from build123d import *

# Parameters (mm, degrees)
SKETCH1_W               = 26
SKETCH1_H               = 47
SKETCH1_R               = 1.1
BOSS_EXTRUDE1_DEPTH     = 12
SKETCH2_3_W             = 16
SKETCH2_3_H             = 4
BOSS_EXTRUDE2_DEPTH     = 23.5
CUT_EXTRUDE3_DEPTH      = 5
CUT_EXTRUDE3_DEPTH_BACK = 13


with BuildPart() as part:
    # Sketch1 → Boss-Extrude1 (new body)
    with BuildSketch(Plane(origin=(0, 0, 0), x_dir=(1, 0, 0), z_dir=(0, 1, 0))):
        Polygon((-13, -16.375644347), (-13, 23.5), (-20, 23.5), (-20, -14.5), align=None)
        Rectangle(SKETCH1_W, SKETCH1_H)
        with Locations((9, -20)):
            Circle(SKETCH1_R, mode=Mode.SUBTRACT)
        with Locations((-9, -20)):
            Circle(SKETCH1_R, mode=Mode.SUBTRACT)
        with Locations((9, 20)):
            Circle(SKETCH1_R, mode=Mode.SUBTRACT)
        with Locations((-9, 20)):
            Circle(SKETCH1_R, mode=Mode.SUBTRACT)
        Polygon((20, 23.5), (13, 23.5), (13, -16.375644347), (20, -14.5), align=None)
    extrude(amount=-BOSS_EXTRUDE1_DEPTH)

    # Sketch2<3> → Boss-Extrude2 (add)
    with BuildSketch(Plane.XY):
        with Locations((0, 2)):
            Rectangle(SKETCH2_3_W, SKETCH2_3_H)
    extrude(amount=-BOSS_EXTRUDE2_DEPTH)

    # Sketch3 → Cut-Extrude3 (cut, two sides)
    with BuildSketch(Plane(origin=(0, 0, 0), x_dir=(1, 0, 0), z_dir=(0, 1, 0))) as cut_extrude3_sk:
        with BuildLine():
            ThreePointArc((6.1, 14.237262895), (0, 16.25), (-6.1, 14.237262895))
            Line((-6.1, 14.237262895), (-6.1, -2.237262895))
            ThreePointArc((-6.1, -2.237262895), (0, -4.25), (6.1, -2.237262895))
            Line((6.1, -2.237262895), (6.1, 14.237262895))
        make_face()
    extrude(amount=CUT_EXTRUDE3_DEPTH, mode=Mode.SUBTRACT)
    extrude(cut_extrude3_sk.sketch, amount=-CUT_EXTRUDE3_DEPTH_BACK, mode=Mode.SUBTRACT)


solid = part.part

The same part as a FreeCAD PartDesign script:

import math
import FreeCAD as App
import Part
import Sketcher
Q = App.Units.Quantity


def add_polygon(sketch, points):
    """Adds a closed chain of lines whose ends are joined by coincident constraints."""
    first, n = sketch.GeometryCount, len(points)
    for a, b in zip(points, points[1:] + points[:1]):
        sketch.addGeometry(Part.LineSegment(App.Vector(*a, 0), App.Vector(*b, 0)), False)
    for i in range(n):
        sketch.addConstraint(Sketcher.Constraint("Coincident", first + i, 2, first + (i + 1) % n, 1))

doc = App.newDocument("Part")
body = doc.addObject("PartDesign::Body", "Body")

# Sketch on XZ plane
sketch1 = doc.addObject("Sketcher::SketchObject", "Sketch")
body.addObject(sketch1)
sketch1.AttachmentSupport = (doc.XZ_Plane, [""])
sketch1.MapMode = "FlatFace"
add_polygon(sketch1, [(-20, -23.5), (-20, 14.5), (-13, 16.375644), (-13, 23.5), (13, 23.5), (13, 16.375644), (20, 14.5), (20, -23.5)])  # lines 0-7
sketch1.addGeometry(Part.Circle(App.Vector(-9, 20, 0), App.Vector(0, 0, 1), 1.1), False)  # 8
sketch1.addGeometry(Part.Circle(App.Vector(9, 20, 0), App.Vector(0, 0, 1), 1.1), False)  # 9
sketch1.addGeometry(Part.Circle(App.Vector(-9, -20, 0), App.Vector(0, 0, 1), 1.1), False)  # 10
sketch1.addGeometry(Part.Circle(App.Vector(9, -20, 0), App.Vector(0, 0, 1), 1.1), False)  # 11
sketch1.addConstraint(Sketcher.Constraint("Vertical", 0))
sketch1.addConstraint(Sketcher.Constraint("Vertical", 2))
sketch1.addConstraint(Sketcher.Constraint("Horizontal", 3))
sketch1.addConstraint(Sketcher.Constraint("Vertical", 4))
sketch1.addConstraint(Sketcher.Constraint("Vertical", 6))
sketch1.addConstraint(Sketcher.Constraint("Horizontal", 7))
sketch1.addConstraint(Sketcher.Constraint("Equal", 8, 9))
sketch1.addConstraint(Sketcher.Constraint("Equal", 9, 10))
sketch1.addConstraint(Sketcher.Constraint("Equal", 10, 11))
sketch1.addConstraint(Sketcher.Constraint("Symmetric", 9, 3, 10, 3, -1, 1))
sketch1.addConstraint(Sketcher.Constraint("Symmetric", 8, 3, 11, 3, -1, 1))
sketch1.addConstraint(Sketcher.Constraint("Symmetric", 8, 3, 9, 3, -2))
sketch1.addConstraint(Sketcher.Constraint("Symmetric", 1, 2, 4, 2, -2))
sketch1.addConstraint(Sketcher.Constraint("Symmetric", 0, 2, 5, 2, -2))
sketch1.addConstraint(Sketcher.Constraint("Diameter", 8, 2.2))
sketch1.addConstraint(Sketcher.Constraint("DistanceX", 3, 1, 3, 2, 26.0))
sketch1.addConstraint(Sketcher.Constraint("DistanceX", 7, 2, 7, 1, 40.0))
sketch1.addConstraint(Sketcher.Constraint("DistanceY", 0, 1, 0, 2, 38.0))
sketch1.addConstraint(Sketcher.Constraint("Angle", 1, Q("15 deg")))
sketch1.addConstraint(Sketcher.Constraint("DistanceX", 8, 3, -1, 1, 9.0))
sketch1.addConstraint(Sketcher.Constraint("DistanceY", -1, 1, 8, 3, 20.0))
sketch1.addConstraint(Sketcher.Constraint("DistanceY", 0, 2, 2, 2, 9.0))
sketch1.addConstraint(Sketcher.Constraint("DistanceY", -1, 1, 0, 2, 14.5))
pad1 = doc.addObject("PartDesign::Pad", "Pad")
body.addObject(pad1)
pad1.Profile = sketch1
pad1.Length = 12

# Sketch on XY plane
sketch2 = doc.addObject("Sketcher::SketchObject", "Sketch001")
body.addObject(sketch2)
sketch2.AttachmentSupport = (doc.XY_Plane, [""])
sketch2.MapMode = "FlatFace"
add_polygon(sketch2, [(-8, 4), (-8, 0), (8, 0), (8, 4)])  # lines 0-3
sketch2.addConstraint(Sketcher.Constraint("Vertical", 0))
sketch2.addConstraint(Sketcher.Constraint("Horizontal", 1))
sketch2.addConstraint(Sketcher.Constraint("Vertical", 2))
sketch2.addConstraint(Sketcher.Constraint("Horizontal", 3))
sketch2.addConstraint(Sketcher.Constraint("Symmetric", 0, 2, 1, 2, -1, 1))
sketch2.addConstraint(Sketcher.Constraint("DistanceX", 1, 1, 1, 2, 16.0))
sketch2.addConstraint(Sketcher.Constraint("DistanceY", 0, 2, 0, 1, 4.0))
pad2 = doc.addObject("PartDesign::Pad", "Pad001")
body.addObject(pad2)
pad2.Profile = sketch2
pad2.Length = 23.5
pad2.Reversed = True

# Sketch on XZ plane
sketch3 = doc.addObject("Sketcher::SketchObject", "Sketch002")
body.addObject(sketch3)
sketch3.AttachmentSupport = (doc.XZ_Plane, [""])
sketch3.MapMode = "FlatFace"
sketch3.addGeometry(Part.ArcOfCircle(Part.Circle(App.Vector(0, -6, 0), App.Vector(0, 0, 1), 10.25), math.radians(-126.521326), math.radians(-53.478674)), False)
sketch3.addGeometry(Part.LineSegment(App.Vector(-6.1, -14.237263, 0), App.Vector(-6.1, 2.237263, 0)), False)
sketch3.addGeometry(Part.ArcOfCircle(Part.Circle(App.Vector(0, -6, 0), App.Vector(0, 0, 1), 10.25), math.radians(53.478674), math.radians(126.521326)), False)
sketch3.addGeometry(Part.LineSegment(App.Vector(6.1, 2.237263, 0), App.Vector(6.1, -14.237263, 0)), False)
sketch3.addConstraint(Sketcher.Constraint("Coincident", 0, 1, 1, 1))
sketch3.addConstraint(Sketcher.Constraint("Coincident", 1, 2, 2, 2))
sketch3.addConstraint(Sketcher.Constraint("Coincident", 2, 1, 3, 1))
sketch3.addConstraint(Sketcher.Constraint("Coincident", 3, 2, 0, 2))
sketch3.addConstraint(Sketcher.Constraint("Vertical", 1))
sketch3.addConstraint(Sketcher.Constraint("Vertical", 3))
sketch3.addConstraint(Sketcher.Constraint("Coincident", 2, 3, 0, 3))
sketch3.addConstraint(Sketcher.Constraint("Equal", 0, 2))
sketch3.addConstraint(Sketcher.Constraint("Symmetric", 1, 2, 2, 1, -2))
sketch3.addConstraint(Sketcher.Constraint("Radius", 0, 10.25))
sketch3.addConstraint(Sketcher.Constraint("DistanceY", 0, 3, -1, 1, 6.0))
sketch3.addConstraint(Sketcher.Constraint("DistanceX", 0, 1, -1, 1, 6.1))
pocket1 = doc.addObject("PartDesign::Pocket", "Pocket")
body.addObject(pocket1)
pocket1.Profile = sketch3
pocket1.Type = "ThroughAll"
pocket1.Midplane = True

doc.recompute()
